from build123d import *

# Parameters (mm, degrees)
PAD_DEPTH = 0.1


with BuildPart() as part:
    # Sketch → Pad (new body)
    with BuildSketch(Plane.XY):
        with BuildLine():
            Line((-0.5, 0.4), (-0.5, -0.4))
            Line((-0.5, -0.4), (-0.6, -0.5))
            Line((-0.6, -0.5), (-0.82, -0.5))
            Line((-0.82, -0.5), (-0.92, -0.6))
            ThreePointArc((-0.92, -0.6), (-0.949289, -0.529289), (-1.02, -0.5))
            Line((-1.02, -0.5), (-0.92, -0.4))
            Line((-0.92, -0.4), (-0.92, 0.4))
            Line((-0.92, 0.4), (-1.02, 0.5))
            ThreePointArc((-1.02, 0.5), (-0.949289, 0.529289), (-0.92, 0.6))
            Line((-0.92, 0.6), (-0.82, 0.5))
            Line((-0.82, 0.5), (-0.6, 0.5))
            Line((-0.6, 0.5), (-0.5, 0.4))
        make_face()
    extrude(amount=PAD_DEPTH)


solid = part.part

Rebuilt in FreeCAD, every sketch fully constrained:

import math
import FreeCAD as App
import Part
import Sketcher

doc = App.newDocument("Part")
body = doc.addObject("PartDesign::Body", "Body")

sketch1 = doc.addObject("Sketcher::SketchObject", "Sketch")
body.addObject(sketch1)
sketch1.AttachmentSupport = (doc.XY_Plane, [""])
sketch1.MapMode = "FlatFace"
sketch1.addGeometry([
    Part.LineSegment(App.Vector(-0.5, -0.4, 0), App.Vector(-0.5, 0.4, 0)),
    Part.LineSegment(App.Vector(-0.5, 0.4, 0), App.Vector(-0.6, 0.5, 0)),
    Part.LineSegment(App.Vector(-0.6, 0.5, 0), App.Vector(-0.82, 0.5, 0)),
    Part.LineSegment(App.Vector(-0.82, 0.5, 0), App.Vector(-0.92, 0.6, 0)),
    Part.ArcOfCircle(Part.Circle(App.Vector(-1.02, 0.6, 0), App.Vector(0, 0, 1), 0.1), math.radians(-90), math.radians(0)),
    Part.LineSegment(App.Vector(-1.02, 0.5, 0), App.Vector(-0.92, 0.4, 0)),
    Part.LineSegment(App.Vector(-0.92, 0.4, 0), App.Vector(-0.92, -0.4, 0)),
    Part.LineSegment(App.Vector(-0.92, -0.4, 0), App.Vector(-1.02, -0.5, 0)),
    Part.ArcOfCircle(Part.Circle(App.Vector(-1.02, -0.6, 0), App.Vector(0, 0, 1), 0.1), math.radians(0), math.radians(90)),
    Part.LineSegment(App.Vector(-0.92, -0.6, 0), App.Vector(-0.82, -0.5, 0)),
    Part.LineSegment(App.Vector(-0.82, -0.5, 0), App.Vector(-0.6, -0.5, 0)),
    Part.LineSegment(App.Vector(-0.6, -0.5, 0), App.Vector(-0.5, -0.4, 0)),
], False)
sketch1.addConstraint([
    Sketcher.Constraint("Coincident", 0, 2, 1, 1),
    Sketcher.Constraint("Coincident", 1, 2, 2, 1),
    Sketcher.Constraint("Coincident", 2, 2, 3, 1),
    Sketcher.Constraint("Coincident", 3, 2, 4, 2),
    Sketcher.Constraint("Coincident", 4, 1, 5, 1),
    Sketcher.Constraint("Coincident", 5, 2, 6, 1),
    Sketcher.Constraint("Coincident", 6, 2, 7, 1),
    Sketcher.Constraint("Coincident", 7, 2, 8, 2),
    Sketcher.Constraint("Coincident", 8, 1, 9, 1),
    Sketcher.Constraint("Coincident", 9, 2, 10, 1),
    Sketcher.Constraint("Coincident", 10, 2, 11, 1),
    Sketcher.Constraint("Coincident", 11, 2, 0, 1),
    Sketcher.Constraint("Vertical", 0),
    Sketcher.Constraint("Horizontal", 2),
    Sketcher.Constraint("Vertical", 6),
    Sketcher.Constraint("Horizontal", 10),
    Sketcher.Constraint("Equal", 4, 8),
    Sketcher.Constraint("Symmetric", 4, 3, 8, 3, -1),
    Sketcher.Constraint("Symmetric", 2, 2, 9, 2, -1),
    Sketcher.Constraint("Parallel", 1, 3),
    Sketcher.Constraint("Parallel", 3, 5),
    Sketcher.Constraint("Perpendicular", 5, 7),
    Sketcher.Constraint("Parallel", 7, 9),
    Sketcher.Constraint("Parallel", 9, 11),
    Sketcher.Constraint("Horizontal", 4, 3, 3, 2),
    Sketcher.Constraint("Horizontal", 2, 2, 4, 1),
    Sketcher.Constraint("Horizontal", 0, 2, 5, 2),
    Sketcher.Constraint("Horizontal", 6, 2, 11, 2),
    Sketcher.Constraint("Vertical", 8, 3, 4, 1),
    Sketcher.Constraint("Vertical", 3, 2, 5, 2),
    Sketcher.Constraint("Vertical", 4, 1, 7, 2),
    Sketcher.Constraint("Equal", 1, 3),
    Sketcher.Constraint("Radius", 4, 0.099999),
    Sketcher.Constraint("DistanceY", 0, 1, 0, 2, 0.8),
    Sketcher.Constraint("DistanceX", 2, 2, 2, 1, 0.22),
    Sketcher.Constraint("DistanceX", 0, 2, -1, 1, 0.5),
])
pad1 = doc.addObject("PartDesign::Pad", "Pad")
body.addObject(pad1)
pad1.Profile = sketch1
pad1.Length = 0.1

doc.recompute()
